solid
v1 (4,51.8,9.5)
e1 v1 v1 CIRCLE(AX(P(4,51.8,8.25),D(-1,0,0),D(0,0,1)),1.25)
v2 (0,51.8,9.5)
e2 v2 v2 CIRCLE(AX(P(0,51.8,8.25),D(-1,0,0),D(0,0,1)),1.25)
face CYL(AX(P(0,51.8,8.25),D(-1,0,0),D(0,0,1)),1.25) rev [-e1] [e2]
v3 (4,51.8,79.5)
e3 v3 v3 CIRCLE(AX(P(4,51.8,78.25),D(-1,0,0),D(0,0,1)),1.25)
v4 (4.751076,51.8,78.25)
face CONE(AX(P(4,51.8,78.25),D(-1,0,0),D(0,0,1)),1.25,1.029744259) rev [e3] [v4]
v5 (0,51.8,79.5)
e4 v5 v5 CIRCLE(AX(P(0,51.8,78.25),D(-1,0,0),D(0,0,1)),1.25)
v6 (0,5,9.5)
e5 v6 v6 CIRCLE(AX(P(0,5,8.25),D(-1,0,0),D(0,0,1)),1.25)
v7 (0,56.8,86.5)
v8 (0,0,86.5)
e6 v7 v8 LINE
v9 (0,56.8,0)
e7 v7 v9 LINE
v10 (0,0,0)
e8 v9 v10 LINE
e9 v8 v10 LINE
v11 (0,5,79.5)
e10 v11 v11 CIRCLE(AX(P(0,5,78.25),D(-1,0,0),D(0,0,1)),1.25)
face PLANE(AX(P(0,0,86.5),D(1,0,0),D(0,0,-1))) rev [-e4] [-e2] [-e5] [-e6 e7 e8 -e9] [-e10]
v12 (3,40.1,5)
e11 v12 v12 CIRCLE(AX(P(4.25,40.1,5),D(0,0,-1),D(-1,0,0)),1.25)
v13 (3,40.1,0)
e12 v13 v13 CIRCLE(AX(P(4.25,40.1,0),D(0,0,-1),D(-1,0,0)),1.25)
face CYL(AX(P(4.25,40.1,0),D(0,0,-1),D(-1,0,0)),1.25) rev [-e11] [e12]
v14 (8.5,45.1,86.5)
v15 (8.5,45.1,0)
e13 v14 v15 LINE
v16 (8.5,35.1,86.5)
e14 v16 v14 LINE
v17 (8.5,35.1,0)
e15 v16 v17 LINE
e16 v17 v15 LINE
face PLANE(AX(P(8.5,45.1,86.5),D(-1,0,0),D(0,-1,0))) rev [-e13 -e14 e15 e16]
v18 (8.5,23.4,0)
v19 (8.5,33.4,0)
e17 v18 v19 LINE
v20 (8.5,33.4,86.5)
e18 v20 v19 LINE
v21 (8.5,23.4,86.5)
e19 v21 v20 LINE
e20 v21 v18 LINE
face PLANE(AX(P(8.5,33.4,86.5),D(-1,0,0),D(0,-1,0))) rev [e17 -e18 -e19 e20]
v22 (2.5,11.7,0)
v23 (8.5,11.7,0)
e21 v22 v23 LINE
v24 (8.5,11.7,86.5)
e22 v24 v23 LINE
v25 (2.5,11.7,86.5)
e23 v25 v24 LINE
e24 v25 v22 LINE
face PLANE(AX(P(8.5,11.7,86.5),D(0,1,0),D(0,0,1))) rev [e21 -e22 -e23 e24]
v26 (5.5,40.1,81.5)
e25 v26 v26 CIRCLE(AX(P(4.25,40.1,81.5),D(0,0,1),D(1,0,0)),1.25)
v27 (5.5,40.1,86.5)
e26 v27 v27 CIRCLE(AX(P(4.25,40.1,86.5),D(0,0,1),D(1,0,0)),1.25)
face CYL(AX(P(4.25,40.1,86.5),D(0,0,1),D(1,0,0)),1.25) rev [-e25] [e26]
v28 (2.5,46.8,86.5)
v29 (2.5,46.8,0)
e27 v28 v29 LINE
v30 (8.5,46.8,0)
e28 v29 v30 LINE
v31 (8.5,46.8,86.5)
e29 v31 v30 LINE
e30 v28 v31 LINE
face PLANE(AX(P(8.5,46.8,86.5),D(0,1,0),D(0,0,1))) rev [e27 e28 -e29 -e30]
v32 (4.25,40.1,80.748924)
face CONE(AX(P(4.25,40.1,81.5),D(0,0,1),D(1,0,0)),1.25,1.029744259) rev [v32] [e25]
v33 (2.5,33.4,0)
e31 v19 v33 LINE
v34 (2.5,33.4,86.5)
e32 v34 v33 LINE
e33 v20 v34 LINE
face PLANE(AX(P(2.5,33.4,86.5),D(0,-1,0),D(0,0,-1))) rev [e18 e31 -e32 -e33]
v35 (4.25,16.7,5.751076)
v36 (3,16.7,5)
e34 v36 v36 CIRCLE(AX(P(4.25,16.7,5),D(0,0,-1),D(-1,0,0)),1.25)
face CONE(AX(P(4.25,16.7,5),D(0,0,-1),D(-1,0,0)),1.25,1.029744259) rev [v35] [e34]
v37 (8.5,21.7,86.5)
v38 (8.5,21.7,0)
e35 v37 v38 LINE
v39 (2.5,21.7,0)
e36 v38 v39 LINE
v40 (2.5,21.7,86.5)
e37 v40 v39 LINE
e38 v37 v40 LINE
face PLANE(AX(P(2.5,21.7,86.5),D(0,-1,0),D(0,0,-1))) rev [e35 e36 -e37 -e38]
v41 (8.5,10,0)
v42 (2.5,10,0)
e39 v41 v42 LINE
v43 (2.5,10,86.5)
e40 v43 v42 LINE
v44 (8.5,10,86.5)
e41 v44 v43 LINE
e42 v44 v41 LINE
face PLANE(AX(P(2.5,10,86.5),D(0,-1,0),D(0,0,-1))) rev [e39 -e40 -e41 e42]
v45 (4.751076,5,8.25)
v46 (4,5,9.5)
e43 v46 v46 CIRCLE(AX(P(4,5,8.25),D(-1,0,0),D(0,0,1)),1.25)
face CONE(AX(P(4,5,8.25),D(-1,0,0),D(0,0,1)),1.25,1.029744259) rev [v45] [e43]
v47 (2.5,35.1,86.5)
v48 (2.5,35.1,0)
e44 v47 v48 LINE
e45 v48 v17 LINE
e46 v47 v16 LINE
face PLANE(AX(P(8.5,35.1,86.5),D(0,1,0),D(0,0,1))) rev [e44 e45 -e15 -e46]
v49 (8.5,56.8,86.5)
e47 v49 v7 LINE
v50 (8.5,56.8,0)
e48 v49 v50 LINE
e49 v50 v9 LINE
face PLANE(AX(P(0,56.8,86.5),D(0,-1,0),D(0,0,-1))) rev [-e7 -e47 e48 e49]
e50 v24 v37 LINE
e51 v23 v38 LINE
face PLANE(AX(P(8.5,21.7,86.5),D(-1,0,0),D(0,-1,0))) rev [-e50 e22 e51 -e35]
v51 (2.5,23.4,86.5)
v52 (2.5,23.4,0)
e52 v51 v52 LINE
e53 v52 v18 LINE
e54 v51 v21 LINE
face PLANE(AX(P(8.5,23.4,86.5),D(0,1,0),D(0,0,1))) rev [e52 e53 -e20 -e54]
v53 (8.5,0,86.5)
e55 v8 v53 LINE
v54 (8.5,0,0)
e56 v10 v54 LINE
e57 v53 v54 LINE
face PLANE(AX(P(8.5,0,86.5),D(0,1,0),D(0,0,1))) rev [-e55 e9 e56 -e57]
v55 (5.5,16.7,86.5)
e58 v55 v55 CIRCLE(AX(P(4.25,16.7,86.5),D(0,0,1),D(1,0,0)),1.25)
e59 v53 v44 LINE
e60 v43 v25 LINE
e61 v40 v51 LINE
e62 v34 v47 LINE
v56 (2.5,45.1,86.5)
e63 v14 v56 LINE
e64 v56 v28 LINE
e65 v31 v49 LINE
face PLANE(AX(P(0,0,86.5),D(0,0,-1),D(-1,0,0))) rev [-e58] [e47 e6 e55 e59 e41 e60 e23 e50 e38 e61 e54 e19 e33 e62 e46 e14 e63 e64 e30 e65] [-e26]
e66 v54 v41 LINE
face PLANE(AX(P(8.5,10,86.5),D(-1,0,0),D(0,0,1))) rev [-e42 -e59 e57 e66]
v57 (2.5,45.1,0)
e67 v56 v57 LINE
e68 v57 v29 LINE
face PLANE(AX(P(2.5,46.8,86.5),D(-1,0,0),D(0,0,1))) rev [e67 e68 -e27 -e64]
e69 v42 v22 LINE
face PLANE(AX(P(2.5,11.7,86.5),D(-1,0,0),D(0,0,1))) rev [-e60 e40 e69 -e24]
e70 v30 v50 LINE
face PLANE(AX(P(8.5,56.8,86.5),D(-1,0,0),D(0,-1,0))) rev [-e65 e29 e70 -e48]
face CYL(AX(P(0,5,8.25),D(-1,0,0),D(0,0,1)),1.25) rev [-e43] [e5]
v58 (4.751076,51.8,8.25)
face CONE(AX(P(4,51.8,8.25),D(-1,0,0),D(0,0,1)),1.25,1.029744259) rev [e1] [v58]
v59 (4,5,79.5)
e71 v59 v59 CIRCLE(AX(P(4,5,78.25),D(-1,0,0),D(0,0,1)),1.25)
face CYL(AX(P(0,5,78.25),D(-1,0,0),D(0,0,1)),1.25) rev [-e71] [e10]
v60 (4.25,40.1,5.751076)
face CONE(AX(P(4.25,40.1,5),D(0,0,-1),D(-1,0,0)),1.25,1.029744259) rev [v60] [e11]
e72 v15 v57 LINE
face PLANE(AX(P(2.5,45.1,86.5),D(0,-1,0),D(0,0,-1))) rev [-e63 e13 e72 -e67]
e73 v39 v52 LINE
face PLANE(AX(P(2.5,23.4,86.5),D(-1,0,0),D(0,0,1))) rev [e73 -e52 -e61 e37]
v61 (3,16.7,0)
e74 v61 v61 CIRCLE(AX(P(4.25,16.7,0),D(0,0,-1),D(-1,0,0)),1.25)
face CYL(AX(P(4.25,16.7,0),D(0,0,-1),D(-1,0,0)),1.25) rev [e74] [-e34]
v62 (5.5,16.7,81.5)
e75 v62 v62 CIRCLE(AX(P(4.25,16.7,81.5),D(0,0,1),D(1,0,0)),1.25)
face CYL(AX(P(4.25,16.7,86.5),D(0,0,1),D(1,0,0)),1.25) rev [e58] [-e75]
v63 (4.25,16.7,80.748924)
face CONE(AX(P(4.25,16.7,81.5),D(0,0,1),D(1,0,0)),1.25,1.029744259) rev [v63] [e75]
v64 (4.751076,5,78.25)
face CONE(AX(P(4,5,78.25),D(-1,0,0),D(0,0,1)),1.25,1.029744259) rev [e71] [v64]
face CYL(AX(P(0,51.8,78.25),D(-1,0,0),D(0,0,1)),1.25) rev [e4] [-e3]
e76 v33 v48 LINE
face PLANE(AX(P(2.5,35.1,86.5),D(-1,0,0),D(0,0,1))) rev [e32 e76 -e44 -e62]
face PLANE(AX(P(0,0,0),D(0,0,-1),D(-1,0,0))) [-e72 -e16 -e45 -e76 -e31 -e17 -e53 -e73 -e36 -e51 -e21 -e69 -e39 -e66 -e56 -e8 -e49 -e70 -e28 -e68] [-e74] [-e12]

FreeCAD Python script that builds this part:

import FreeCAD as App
import Part
import Sketcher
Q = App.Units.Quantity

doc = App.newDocument("Part")
body = doc.addObject("PartDesign::Body", "Body")

# Sketch on XY plane
sketch1 = body.newObject("Sketcher::SketchObject", "Sketch")
sketch1.AttachmentSupport = (doc.getObject("XY_Plane"), [""])
sketch1.MapMode = "FlatFace"
sketch1.addGeometry(Part.LineSegment(App.Vector(0, 56.8, 0), App.Vector(0, 0, 0)), False)
sketch1.addGeometry(Part.LineSegment(App.Vector(0, 0, 0), App.Vector(8.5, 0, 0)), False)
sketch1.addGeometry(Part.LineSegment(App.Vector(8.5, 0, 0), App.Vector(8.5, 10, 0)), False)
sketch1.addGeometry(Part.LineSegment(App.Vector(8.5, 10, 0), App.Vector(2.5, 10, 0)), False)
sketch1.addGeometry(Part.LineSegment(App.Vector(2.5, 10, 0), App.Vector(2.5, 11.7, 0)), False)
sketch1.addGeometry(Part.LineSegment(App.Vector(2.5, 11.7, 0), App.Vector(8.5, 11.7, 0)), False)
sketch1.addGeometry(Part.LineSegment(App.Vector(8.5, 11.7, 0), App.Vector(8.5, 21.7, 0)), False)
sketch1.addGeometry(Part.LineSegment(App.Vector(8.5, 21.7, 0), App.Vector(2.5, 21.7, 0)), False)
sketch1.addGeometry(Part.LineSegment(App.Vector(2.5, 21.7, 0), App.Vector(2.5, 23.4, 0)), False)
sketch1.addGeometry(Part.LineSegment(App.Vector(2.5, 23.4, 0), App.Vector(8.5, 23.4, 0)), False)
sketch1.addGeometry(Part.LineSegment(App.Vector(8.5, 23.4, 0), App.Vector(8.5, 33.4, 0)), False)
sketch1.addGeometry(Part.LineSegment(App.Vector(8.5, 33.4, 0), App.Vector(2.5, 33.4, 0)), False)
sketch1.addGeometry(Part.LineSegment(App.Vector(2.5, 33.4, 0), App.Vector(2.5, 35.1, 0)), False)
sketch1.addGeometry(Part.LineSegment(App.Vector(2.5, 35.1, 0), App.Vector(8.5, 35.1, 0)), False)
sketch1.addGeometry(Part.LineSegment(App.Vector(8.5, 35.1, 0), App.Vector(8.5, 45.1, 0)), False)
sketch1.addGeometry(Part.LineSegment(App.Vector(8.5, 45.1, 0), App.Vector(2.5, 45.1, 0)), False)
sketch1.addGeometry(Part.LineSegment(App.Vector(2.5, 45.1, 0), App.Vector(2.5, 46.8, 0)), False)
sketch1.addGeometry(Part.LineSegment(App.Vector(2.5, 46.8, 0), App.Vector(8.5, 46.8, 0)), False)
sketch1.addGeometry(Part.LineSegment(App.Vector(8.5, 46.8, 0), App.Vector(8.5, 56.8, 0)), False)
sketch1.addGeometry(Part.LineSegment(App.Vector(8.5, 56.8, 0), App.Vector(0, 56.8, 0)), False)
sketch1.addConstraint(Sketcher.Constraint("Coincident", 0, 2, 1, 1))
sketch1.addConstraint(Sketcher.Constraint("Coincident", 1, 2, 2, 1))
sketch1.addConstraint(Sketcher.Constraint("Coincident", 2, 2, 3, 1))
sketch1.addConstraint(Sketcher.Constraint("Coincident", 3, 2, 4, 1))
sketch1.addConstraint(Sketcher.Constraint("Coincident", 4, 2, 5, 1))
sketch1.addConstraint(Sketcher.Constraint("Coincident", 5, 2, 6, 1))
sketch1.addConstraint(Sketcher.Constraint("Coincident", 6, 2, 7, 1))
sketch1.addConstraint(Sketcher.Constraint("Coincident", 7, 2, 8, 1))
sketch1.addConstraint(Sketcher.Constraint("Coincident", 8, 2, 9, 1))
sketch1.addConstraint(Sketcher.Constraint("Coincident", 9, 2, 10, 1))
sketch1.addConstraint(Sketcher.Constraint("Coincident", 10, 2, 11, 1))
sketch1.addConstraint(Sketcher.Constraint("Coincident", 11, 2, 12, 1))
sketch1.addConstraint(Sketcher.Constraint("Coincident", 12, 2, 13, 1))
sketch1.addConstraint(Sketcher.Constraint("Coincident", 13, 2, 14, 1))
sketch1.addConstraint(Sketcher.Constraint("Coincident", 14, 2, 15, 1))
sketch1.addConstraint(Sketcher.Constraint("Coincident", 15, 2, 16, 1))
sketch1.addConstraint(Sketcher.Constraint("Coincident", 16, 2, 17, 1))
sketch1.addConstraint(Sketcher.Constraint("Coincident", 17, 2, 18, 1))
sketch1.addConstraint(Sketcher.Constraint("Coincident", 18, 2, 19, 1))
sketch1.addConstraint(Sketcher.Constraint("Coincident", 19, 2, 0, 1))
sketch1.addConstraint(Sketcher.Constraint("Vertical", 0))
sketch1.addConstraint(Sketcher.Constraint("Horizontal", 1))
sketch1.addConstraint(Sketcher.Constraint("Vertical", 2))
sketch1.addConstraint(Sketcher.Constraint("Horizontal", 3))
sketch1.addConstraint(Sketcher.Constraint("Vertical", 4))
sketch1.addConstraint(Sketcher.Constraint("Horizontal", 5))
sketch1.addConstraint(Sketcher.Constraint("Vertical", 6))
sketch1.addConstraint(Sketcher.Constraint("Horizontal", 7))
sketch1.addConstraint(Sketcher.Constraint("Vertical", 8))
sketch1.addConstraint(Sketcher.Constraint("Horizontal", 9))
sketch1.addConstraint(Sketcher.Constraint("Vertical", 10))
sketch1.addConstraint(Sketcher.Constraint("Horizontal", 11))
sketch1.addConstraint(Sketcher.Constraint("Vertical", 12))
sketch1.addConstraint(Sketcher.Constraint("Horizontal", 13))
sketch1.addConstraint(Sketcher.Constraint("Vertical", 14))
sketch1.addConstraint(Sketcher.Constraint("Horizontal", 15))
sketch1.addConstraint(Sketcher.Constraint("Vertical", 16))
sketch1.addConstraint(Sketcher.Constraint("Horizontal", 17))
sketch1.addConstraint(Sketcher.Constraint("Vertical", 18))
sketch1.addConstraint(Sketcher.Constraint("Horizontal", 19))
sketch1.addConstraint(Sketcher.Constraint("Coincident", 0, 2, -1, 1))
sketch1.addConstraint(Sketcher.Constraint("Vertical", 2, 2, 5, 2))
sketch1.addConstraint(Sketcher.Constraint("Vertical", 4, 2, 7, 2))
sketch1.addConstraint(Sketcher.Constraint("Vertical", 6, 2, 9, 2))
sketch1.addConstraint(Sketcher.Constraint("Vertical", 8, 2, 11, 2))
sketch1.addConstraint(Sketcher.Constraint("Vertical", 10, 2, 13, 2))
sketch1.addConstraint(Sketcher.Constraint("Vertical", 12, 2, 15, 2))
sketch1.addConstraint(Sketcher.Constraint("Vertical", 14, 2, 17, 2))
sketch1.addConstraint(Sketcher.Constraint("Equal", 2, 6))
sketch1.addConstraint(Sketcher.Constraint("Equal", 4, 8))
sketch1.addConstraint(Sketcher.Constraint("Equal", 6, 10))
sketch1.addConstraint(Sketcher.Constraint("Equal", 8, 12))
sketch1.addConstraint(Sketcher.Constraint("Equal", 10, 14))
sketch1.addConstraint(Sketcher.Constraint("Equal", 12, 16))
sketch1.addConstraint(Sketcher.Constraint("Equal", 14, 18))
sketch1.addConstraint(Sketcher.Constraint("DistanceX", 3, 2, 3, 1, 6.0))
sketch1.addConstraint(Sketcher.Constraint("DistanceY", 2, 1, 2, 2, 10.0))
sketch1.addConstraint(Sketcher.Constraint("DistanceX", 1, 1, 1, 2, 8.5))
sketch1.addConstraint(Sketcher.Constraint("DistanceY", 0, 2, 0, 1, 56.8))
pad1 = body.newObject("PartDesign::Pad", "Pad")
pad1.Profile = sketch1
pad1.Length = 86.5

# Sketch on YZ plane
sketch2 = body.newObject("Sketcher::SketchObject", "Sketch001")
sketch2.AttachmentSupport = (doc.getObject("YZ_Plane"), [""])
sketch2.MapMode = "FlatFace"
sketch2.AttachmentOffset = App.Placement(App.Vector(0, 0, 4.25), App.Rotation())
sketch2.addGeometry(Part.LineSegment(App.Vector(40.1, 80.7, 0), App.Vector(40.1, 86.5, 0)), False)
sketch2.addGeometry(Part.LineSegment(App.Vector(40.1, 86.5, 0), App.Vector(38.9, 86.5, 0)), False)
sketch2.addGeometry(Part.LineSegment(App.Vector(38.9, 86.5, 0), App.Vector(38.9, 81.5, 0)), False)
sketch2.addGeometry(Part.LineSegment(App.Vector(38.9, 81.5, 0), App.Vector(40.1, 80.7, 0)), False)
sketch2.addGeometry(Part.LineSegment(App.Vector(40.1, 86.5, 0), App.Vector(40.1, 80.7, 0)), True)  # axis
sketch2.addConstraint(Sketcher.Constraint("Coincident", 0, 2, 1, 1))
sketch2.addConstraint(Sketcher.Constraint("Coincident", 1, 2, 2, 1))
sketch2.addConstraint(Sketcher.Constraint("Coincident", 2, 2, 3, 1))
sketch2.addConstraint(Sketcher.Constraint("Coincident", 3, 2, 0, 1))
sketch2.addConstraint(Sketcher.Constraint("Vertical", 0))
sketch2.addConstraint(Sketcher.Constraint("Horizontal", 1))
sketch2.addConstraint(Sketcher.Constraint("Vertical", 2))
sketch2.addConstraint(Sketcher.Constraint("Vertical", 4))
sketch2.addConstraint(Sketcher.Constraint("Coincident", 4, 1, 0, 2))
sketch2.addConstraint(Sketcher.Constraint("Equal", 0, 4))
sketch2.addConstraint(Sketcher.Constraint("DistanceY", 2, 2, 2, 1, 5.0))
sketch2.addConstraint(Sketcher.Constraint("Angle", 3, Q("-31 deg")))
sketch2.addConstraint(Sketcher.Constraint("DistanceX", 1, 2, 1, 1, 1.25))
sketch2.addConstraint(Sketcher.Constraint("DistanceX", -1, 1, 0, 2, 40.1))
sketch2.addConstraint(Sketcher.Constraint("DistanceY", -1, 1, 0, 2, 86.5))
groove = body.newObject("PartDesign::Groove", "Groove")
groove.Profile = sketch2
groove.ReferenceAxis = (sketch2, ["Axis0"])
groove.Angle = 360
doc.recompute()

linearpattern = body.newObject("PartDesign::LinearPattern", "LinearPattern")
linearpattern.Originals = [groove]
linearpattern.Direction = (doc.getObject("Y_Axis"), [""])
linearpattern.Mode = "offset"
linearpattern.Offset = 23.4
linearpattern.Occurrences = 2
linearpattern.Reversed = True
body.Tip = linearpattern
doc.recompute()

datumplane = body.newObject("PartDesign::Plane", "DatumPlane")
datumplane.AttachmentSupport = (doc.getObject("XY_Plane"), [""])
datumplane.MapMode = "FlatFace"
datumplane.AttachmentOffset = App.Placement(App.Vector(0, 0, 43.25), App.Rotation())
mirrored = body.newObject("PartDesign::Mirrored", "Mirrored")
mirrored.Originals = [groove]
mirrored.MirrorPlane = (datumplane, [""])
body.Tip = mirrored

# Sketch on YZ plane
sketch3 = body.newObject("Sketcher::SketchObject", "Sketch002")
sketch3.AttachmentSupport = (doc.getObject("YZ_Plane"), [""])
sketch3.MapMode = "FlatFace"
sketch3.AttachmentOffset = App.Placement(App.Vector(0, 0, 4.25), App.Rotation())
sketch3.addGeometry(Part.LineSegment(App.Vector(16.7, 0, 0), App.Vector(16.7, 5.8, 0)), False)
sketch3.addGeometry(Part.LineSegment(App.Vector(16.7, 5.8, 0), App.Vector(15.4, 5, 0)), False)
sketch3.addGeometry(Part.LineSegment(App.Vector(15.4, 5, 0), App.Vector(15.4, 0, 0)), False)
sketch3.addGeometry(Part.LineSegment(App.Vector(15.4, 0, 0), App.Vector(16.7, 0, 0)), False)
sketch3.addGeometry(Part.LineSegment(App.Vector(16.7, 5.8, 0), App.Vector(16.7, 0, 0)), True)  # axis
sketch3.addConstraint(Sketcher.Constraint("Coincident", 0, 2, 1, 1))
sketch3.addConstraint(Sketcher.Constraint("Coincident", 1, 2, 2, 1))
sketch3.addConstraint(Sketcher.Constraint("Coincident", 2, 2, 3, 1))
sketch3.addConstraint(Sketcher.Constraint("Coincident", 3, 2, 0, 1))
sketch3.addConstraint(Sketcher.Constraint("Vertical", 0))
sketch3.addConstraint(Sketcher.Constraint("Vertical", 2))
sketch3.addConstraint(Sketcher.Constraint("Horizontal", 3))
sketch3.addConstraint(Sketcher.Constraint("Vertical", 4))
sketch3.addConstraint(Sketcher.Constraint("Coincident", 4, 1, 0, 2))
sketch3.addConstraint(Sketcher.Constraint("PointOnObject", 2, 2, -1))
sketch3.addConstraint(Sketcher.Constraint("PointOnObject", 4, 2, -1))
sketch3.addConstraint(Sketcher.Constraint("DistanceY", 2, 2, 2, 1, 5.0))
sketch3.addConstraint(Sketcher.Constraint("Angle", 1, Q("-149 deg")))
sketch3.addConstraint(Sketcher.Constraint("DistanceX", 3, 1, 3, 2, 1.25))
sketch3.addConstraint(Sketcher.Constraint("DistanceX", -1, 1, 0, 2, 16.7))
groove2 = body.newObject("PartDesign::Groove", "Groove001")
groove2.Profile = sketch3
groove2.ReferenceAxis = (sketch3, ["Axis0"])
groove2.Angle = 360

# Sketch on XZ plane
sketch4 = body.newObject("Sketcher::SketchObject", "Sketch003")
sketch4.AttachmentSupport = (doc.getObject("XZ_Plane"), [""])
sketch4.MapMode = "FlatFace"
sketch4.AttachmentOffset = App.Placement(App.Vector(0, 0, -5), App.Rotation())
sketch4.addGeometry(Part.LineSegment(App.Vector(4.8, 8.2, 0), App.Vector(0, 8.2, 0)), False)
sketch4.addGeometry(Part.LineSegment(App.Vector(0, 8.2, 0), App.Vector(0, 9.5, 0)), False)
sketch4.addGeometry(Part.LineSegment(App.Vector(0, 9.5, 0), App.Vector(4, 9.5, 0)), False)
sketch4.addGeometry(Part.LineSegment(App.Vector(4, 9.5, 0), App.Vector(4.8, 8.2, 0)), False)
sketch4.addGeometry(Part.LineSegment(App.Vector(0, 8.2, 0), App.Vector(4.8, 8.2, 0)), True)  # axis
sketch4.addConstraint(Sketcher.Constraint("Coincident", 0, 2, 1, 1))
sketch4.addConstraint(Sketcher.Constraint("Coincident", 1, 2, 2, 1))
sketch4.addConstraint(Sketcher.Constraint("Coincident", 2, 2, 3, 1))
sketch4.addConstraint(Sketcher.Constraint("Coincident", 3, 2, 0, 1))
sketch4.addConstraint(Sketcher.Constraint("Horizontal", 0))
sketch4.addConstraint(Sketcher.Constraint("Vertical", 1))
sketch4.addConstraint(Sketcher.Constraint("Horizontal", 2))
sketch4.addConstraint(Sketcher.Constraint("Horizontal", 4))
sketch4.addConstraint(Sketcher.Constraint("Coincident", 4, 1, 0, 2))
sketch4.addConstraint(Sketcher.Constraint("PointOnObject", 0, 2, -2))
sketch4.addConstraint(Sketcher.Constraint("Equal", 0, 4))
sketch4.addConstraint(Sketcher.Constraint("DistanceX", 2, 1, 2, 2, 4.0))
sketch4.addConstraint(Sketcher.Constraint("Angle", 3, Q("-59 deg")))
sketch4.addConstraint(Sketcher.Constraint("DistanceY", 1, 1, 1, 2, 1.25))
sketch4.addConstraint(Sketcher.Constraint("DistanceY", -1, 1, 1, 2, 9.5))
groove3 = body.newObject("PartDesign::Groove", "Groove002")
groove3.Profile = sketch4
groove3.ReferenceAxis = (sketch4, ["Axis0"])
groove3.Angle = 360
doc.recompute()

linearpattern2 = body.newObject("PartDesign::LinearPattern", "LinearPattern001")
linearpattern2.Originals = [groove3]
linearpattern2.Direction = (doc.getObject("Y_Axis"), [""])
linearpattern2.Mode = "offset"
linearpattern2.Offset = 46.8
linearpattern2.Occurrences = 2
body.Tip = linearpattern2
doc.recompute()

datumplane2 = body.newObject("PartDesign::Plane", "DatumPlane001")
datumplane2.AttachmentSupport = (doc.getObject("XY_Plane"), [""])
datumplane2.MapMode = "FlatFace"
datumplane2.AttachmentOffset = App.Placement(App.Vector(0, 0, 43.25), App.Rotation())
mirrored2 = body.newObject("PartDesign::Mirrored", "Mirrored001")
mirrored2.Originals = [groove3]
mirrored2.MirrorPlane = (datumplane2, [""])
body.Tip = mirrored2

# Sketch on XZ plane
sketch5 = body.newObject("Sketcher::SketchObject", "Sketch004")
sketch5.AttachmentSupport = (doc.getObject("XZ_Plane"), [""])
sketch5.MapMode = "FlatFace"
sketch5.AttachmentOffset = App.Placement(App.Vector(0, 0, -51.8), App.Rotation())
sketch5.addGeometry(Part.LineSegment(App.Vector(0, 78.2, 0), App.Vector(4.8, 78.2, 0)), False)
sketch5.addGeometry(Part.LineSegment(App.Vector(4.8, 78.2, 0), App.Vector(4, 77, 0)), False)
sketch5.addGeometry(Part.LineSegment(App.Vector(4, 77, 0), App.Vector(0, 77, 0)), False)
sketch5.addGeometry(Part.LineSegment(App.Vector(0, 77, 0), App.Vector(0, 78.2, 0)), False)
sketch5.addGeometry(Part.LineSegment(App.Vector(4.8, 78.2, 0), App.Vector(0, 78.2, 0)), True)  # axis
sketch5.addConstraint(Sketcher.Constraint("Coincident", 0, 2, 1, 1))
sketch5.addConstraint(Sketcher.Constraint("Coincident", 1, 2, 2, 1))
sketch5.addConstraint(Sketcher.Constraint("Coincident", 2, 2, 3, 1))
sketch5.addConstraint(Sketcher.Constraint("Coincident", 3, 2, 0, 1))
sketch5.addConstraint(Sketcher.Constraint("Horizontal", 0))
sketch5.addConstraint(Sketcher.Constraint("Horizontal", 2))
sketch5.addConstraint(Sketcher.Constraint("Vertical", 3))
sketch5.addConstraint(Sketcher.Constraint("Horizontal", 4))
sketch5.addConstraint(Sketcher.Constraint("Coincident", 4, 1, 0, 2))
sketch5.addConstraint(Sketcher.Constraint("PointOnObject", 2, 2, -2))
sketch5.addConstraint(Sketcher.Constraint("PointOnObject", 4, 2, -2))
sketch5.addConstraint(Sketcher.Constraint("DistanceX", 2, 2, 2, 1, 4.0))
sketch5.addConstraint(Sketcher.Constraint("Angle", 1, Q("-121 deg")))
sketch5.addConstraint(Sketcher.Constraint("DistanceY", -1, 1, 1, 2, 77.0))
sketch5.addConstraint(Sketcher.Constraint("DistanceY", 3, 1, 3, 2, 1.25))
groove4 = body.newObject("PartDesign::Groove", "Groove003")
groove4.Profile = sketch5
groove4.ReferenceAxis = (sketch5, ["Axis0"])
groove4.Angle = 360

doc.recompute()
